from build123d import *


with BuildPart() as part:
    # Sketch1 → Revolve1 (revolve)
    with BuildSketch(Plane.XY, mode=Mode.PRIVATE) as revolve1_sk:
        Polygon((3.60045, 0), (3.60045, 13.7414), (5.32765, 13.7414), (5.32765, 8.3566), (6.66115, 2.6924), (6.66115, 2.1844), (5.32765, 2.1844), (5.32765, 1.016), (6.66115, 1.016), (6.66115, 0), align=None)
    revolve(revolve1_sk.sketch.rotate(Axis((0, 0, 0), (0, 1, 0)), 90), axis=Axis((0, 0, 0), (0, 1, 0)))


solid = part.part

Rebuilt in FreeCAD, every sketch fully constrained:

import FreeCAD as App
import Part
import Sketcher
from FreeCAD import Vector
Q = App.Units.Quantity

doc = App.newDocument("Part")
body = doc.addObject("PartDesign::Body", "Body")

# Sketch on XY plane
sketch1 = doc.addObject("Sketcher::SketchObject", "Sketch")
body.addObject(sketch1)
sketch1.AttachmentSupport = (doc.XY_Plane, [""])
sketch1.MapMode = "FlatFace"
sketch1.addGeometry([
    Part.LineSegment(Vector(3.6, 13.7, 0), Vector(3.6, 0, 0)),  # 0
    Part.LineSegment(Vector(3.6, 0, 0), Vector(6.7, 0, 0)),  # 1
    Part.LineSegment(Vector(6.7, 0, 0), Vector(6.7, 1, 0)),  # 2
    Part.LineSegment(Vector(6.7, 1, 0), Vector(5.3, 1, 0)),  # 3
    Part.LineSegment(Vector(5.3, 1, 0), Vector(5.3, 2.2, 0)),  # 4
    Part.LineSegment(Vector(5.3, 2.2, 0), Vector(6.7, 2.2, 0)),  # 5
    Part.LineSegment(Vector(6.7, 2.2, 0), Vector(6.7, 2.7, 0)),  # 6
    Part.LineSegment(Vector(6.7, 2.7, 0), Vector(5.3, 8.4, 0)),  # 7
    Part.LineSegment(Vector(5.3, 8.4, 0), Vector(5.3, 13.7, 0)),  # 8
    Part.LineSegment(Vector(5.3, 13.7, 0), Vector(3.6, 13.7, 0)),  # 9
], False)
sketch1.addConstraint([
    Sketcher.Constraint("Coincident", 0, 2, 1, 1),
    Sketcher.Constraint("Coincident", 1, 2, 2, 1),
    Sketcher.Constraint("Coincident", 2, 2, 3, 1),
    Sketcher.Constraint("Coincident", 3, 2, 4, 1),
    Sketcher.Constraint("Coincident", 4, 2, 5, 1),
    Sketcher.Constraint("Coincident", 5, 2, 6, 1),
    Sketcher.Constraint("Coincident", 6, 2, 7, 1),
    Sketcher.Constraint("Coincident", 7, 2, 8, 1),
    Sketcher.Constraint("Coincident", 8, 2, 9, 1),
    Sketcher.Constraint("Coincident", 9, 2, 0, 1),
    Sketcher.Constraint("Vertical", 0),
    Sketcher.Constraint("Horizontal", 1),
    Sketcher.Constraint("Vertical", 2),
    Sketcher.Constraint("Horizontal", 3),
    Sketcher.Constraint("Vertical", 4),
    Sketcher.Constraint("Horizontal", 5),
    Sketcher.Constraint("Vertical", 6),
    Sketcher.Constraint("Vertical", 8),
    Sketcher.Constraint("Horizontal", 9),
    Sketcher.Constraint("PointOnObject", 0, 2, -1),
    Sketcher.Constraint("Vertical", 2, 2, 5, 2),
    Sketcher.Constraint("Vertical", 4, 2, 7, 2),
    Sketcher.Constraint("DistanceY", 2, 1, 2, 2, Q("0.04 in")),
    Sketcher.Constraint("DistanceY", 6, 1, 6, 2, Q("0.02 in")),
    Sketcher.Constraint("DistanceX", 9, 2, 9, 1, Q("0.068 in")),
    Sketcher.Constraint("DistanceY", 0, 2, 0, 1, Q("0.541 in")),
    Sketcher.Constraint("DistanceY", 4, 1, 4, 2, Q("0.046 in")),
    Sketcher.Constraint("DistanceY", 8, 1, 8, 2, Q("0.212 in")),
    Sketcher.Constraint("DistanceX", 1, 1, 1, 2, Q("0.1205 in")),
    Sketcher.Constraint("DistanceX", -1, 1, 0, 2, 3.60045),
])
revolution = doc.addObject("PartDesign::Revolution", "Revolution")
body.addObject(revolution)
revolution.Profile = sketch1
revolution.ReferenceAxis = (sketch1, ["V_Axis"])
revolution.Angle = 360

doc.recompute()
